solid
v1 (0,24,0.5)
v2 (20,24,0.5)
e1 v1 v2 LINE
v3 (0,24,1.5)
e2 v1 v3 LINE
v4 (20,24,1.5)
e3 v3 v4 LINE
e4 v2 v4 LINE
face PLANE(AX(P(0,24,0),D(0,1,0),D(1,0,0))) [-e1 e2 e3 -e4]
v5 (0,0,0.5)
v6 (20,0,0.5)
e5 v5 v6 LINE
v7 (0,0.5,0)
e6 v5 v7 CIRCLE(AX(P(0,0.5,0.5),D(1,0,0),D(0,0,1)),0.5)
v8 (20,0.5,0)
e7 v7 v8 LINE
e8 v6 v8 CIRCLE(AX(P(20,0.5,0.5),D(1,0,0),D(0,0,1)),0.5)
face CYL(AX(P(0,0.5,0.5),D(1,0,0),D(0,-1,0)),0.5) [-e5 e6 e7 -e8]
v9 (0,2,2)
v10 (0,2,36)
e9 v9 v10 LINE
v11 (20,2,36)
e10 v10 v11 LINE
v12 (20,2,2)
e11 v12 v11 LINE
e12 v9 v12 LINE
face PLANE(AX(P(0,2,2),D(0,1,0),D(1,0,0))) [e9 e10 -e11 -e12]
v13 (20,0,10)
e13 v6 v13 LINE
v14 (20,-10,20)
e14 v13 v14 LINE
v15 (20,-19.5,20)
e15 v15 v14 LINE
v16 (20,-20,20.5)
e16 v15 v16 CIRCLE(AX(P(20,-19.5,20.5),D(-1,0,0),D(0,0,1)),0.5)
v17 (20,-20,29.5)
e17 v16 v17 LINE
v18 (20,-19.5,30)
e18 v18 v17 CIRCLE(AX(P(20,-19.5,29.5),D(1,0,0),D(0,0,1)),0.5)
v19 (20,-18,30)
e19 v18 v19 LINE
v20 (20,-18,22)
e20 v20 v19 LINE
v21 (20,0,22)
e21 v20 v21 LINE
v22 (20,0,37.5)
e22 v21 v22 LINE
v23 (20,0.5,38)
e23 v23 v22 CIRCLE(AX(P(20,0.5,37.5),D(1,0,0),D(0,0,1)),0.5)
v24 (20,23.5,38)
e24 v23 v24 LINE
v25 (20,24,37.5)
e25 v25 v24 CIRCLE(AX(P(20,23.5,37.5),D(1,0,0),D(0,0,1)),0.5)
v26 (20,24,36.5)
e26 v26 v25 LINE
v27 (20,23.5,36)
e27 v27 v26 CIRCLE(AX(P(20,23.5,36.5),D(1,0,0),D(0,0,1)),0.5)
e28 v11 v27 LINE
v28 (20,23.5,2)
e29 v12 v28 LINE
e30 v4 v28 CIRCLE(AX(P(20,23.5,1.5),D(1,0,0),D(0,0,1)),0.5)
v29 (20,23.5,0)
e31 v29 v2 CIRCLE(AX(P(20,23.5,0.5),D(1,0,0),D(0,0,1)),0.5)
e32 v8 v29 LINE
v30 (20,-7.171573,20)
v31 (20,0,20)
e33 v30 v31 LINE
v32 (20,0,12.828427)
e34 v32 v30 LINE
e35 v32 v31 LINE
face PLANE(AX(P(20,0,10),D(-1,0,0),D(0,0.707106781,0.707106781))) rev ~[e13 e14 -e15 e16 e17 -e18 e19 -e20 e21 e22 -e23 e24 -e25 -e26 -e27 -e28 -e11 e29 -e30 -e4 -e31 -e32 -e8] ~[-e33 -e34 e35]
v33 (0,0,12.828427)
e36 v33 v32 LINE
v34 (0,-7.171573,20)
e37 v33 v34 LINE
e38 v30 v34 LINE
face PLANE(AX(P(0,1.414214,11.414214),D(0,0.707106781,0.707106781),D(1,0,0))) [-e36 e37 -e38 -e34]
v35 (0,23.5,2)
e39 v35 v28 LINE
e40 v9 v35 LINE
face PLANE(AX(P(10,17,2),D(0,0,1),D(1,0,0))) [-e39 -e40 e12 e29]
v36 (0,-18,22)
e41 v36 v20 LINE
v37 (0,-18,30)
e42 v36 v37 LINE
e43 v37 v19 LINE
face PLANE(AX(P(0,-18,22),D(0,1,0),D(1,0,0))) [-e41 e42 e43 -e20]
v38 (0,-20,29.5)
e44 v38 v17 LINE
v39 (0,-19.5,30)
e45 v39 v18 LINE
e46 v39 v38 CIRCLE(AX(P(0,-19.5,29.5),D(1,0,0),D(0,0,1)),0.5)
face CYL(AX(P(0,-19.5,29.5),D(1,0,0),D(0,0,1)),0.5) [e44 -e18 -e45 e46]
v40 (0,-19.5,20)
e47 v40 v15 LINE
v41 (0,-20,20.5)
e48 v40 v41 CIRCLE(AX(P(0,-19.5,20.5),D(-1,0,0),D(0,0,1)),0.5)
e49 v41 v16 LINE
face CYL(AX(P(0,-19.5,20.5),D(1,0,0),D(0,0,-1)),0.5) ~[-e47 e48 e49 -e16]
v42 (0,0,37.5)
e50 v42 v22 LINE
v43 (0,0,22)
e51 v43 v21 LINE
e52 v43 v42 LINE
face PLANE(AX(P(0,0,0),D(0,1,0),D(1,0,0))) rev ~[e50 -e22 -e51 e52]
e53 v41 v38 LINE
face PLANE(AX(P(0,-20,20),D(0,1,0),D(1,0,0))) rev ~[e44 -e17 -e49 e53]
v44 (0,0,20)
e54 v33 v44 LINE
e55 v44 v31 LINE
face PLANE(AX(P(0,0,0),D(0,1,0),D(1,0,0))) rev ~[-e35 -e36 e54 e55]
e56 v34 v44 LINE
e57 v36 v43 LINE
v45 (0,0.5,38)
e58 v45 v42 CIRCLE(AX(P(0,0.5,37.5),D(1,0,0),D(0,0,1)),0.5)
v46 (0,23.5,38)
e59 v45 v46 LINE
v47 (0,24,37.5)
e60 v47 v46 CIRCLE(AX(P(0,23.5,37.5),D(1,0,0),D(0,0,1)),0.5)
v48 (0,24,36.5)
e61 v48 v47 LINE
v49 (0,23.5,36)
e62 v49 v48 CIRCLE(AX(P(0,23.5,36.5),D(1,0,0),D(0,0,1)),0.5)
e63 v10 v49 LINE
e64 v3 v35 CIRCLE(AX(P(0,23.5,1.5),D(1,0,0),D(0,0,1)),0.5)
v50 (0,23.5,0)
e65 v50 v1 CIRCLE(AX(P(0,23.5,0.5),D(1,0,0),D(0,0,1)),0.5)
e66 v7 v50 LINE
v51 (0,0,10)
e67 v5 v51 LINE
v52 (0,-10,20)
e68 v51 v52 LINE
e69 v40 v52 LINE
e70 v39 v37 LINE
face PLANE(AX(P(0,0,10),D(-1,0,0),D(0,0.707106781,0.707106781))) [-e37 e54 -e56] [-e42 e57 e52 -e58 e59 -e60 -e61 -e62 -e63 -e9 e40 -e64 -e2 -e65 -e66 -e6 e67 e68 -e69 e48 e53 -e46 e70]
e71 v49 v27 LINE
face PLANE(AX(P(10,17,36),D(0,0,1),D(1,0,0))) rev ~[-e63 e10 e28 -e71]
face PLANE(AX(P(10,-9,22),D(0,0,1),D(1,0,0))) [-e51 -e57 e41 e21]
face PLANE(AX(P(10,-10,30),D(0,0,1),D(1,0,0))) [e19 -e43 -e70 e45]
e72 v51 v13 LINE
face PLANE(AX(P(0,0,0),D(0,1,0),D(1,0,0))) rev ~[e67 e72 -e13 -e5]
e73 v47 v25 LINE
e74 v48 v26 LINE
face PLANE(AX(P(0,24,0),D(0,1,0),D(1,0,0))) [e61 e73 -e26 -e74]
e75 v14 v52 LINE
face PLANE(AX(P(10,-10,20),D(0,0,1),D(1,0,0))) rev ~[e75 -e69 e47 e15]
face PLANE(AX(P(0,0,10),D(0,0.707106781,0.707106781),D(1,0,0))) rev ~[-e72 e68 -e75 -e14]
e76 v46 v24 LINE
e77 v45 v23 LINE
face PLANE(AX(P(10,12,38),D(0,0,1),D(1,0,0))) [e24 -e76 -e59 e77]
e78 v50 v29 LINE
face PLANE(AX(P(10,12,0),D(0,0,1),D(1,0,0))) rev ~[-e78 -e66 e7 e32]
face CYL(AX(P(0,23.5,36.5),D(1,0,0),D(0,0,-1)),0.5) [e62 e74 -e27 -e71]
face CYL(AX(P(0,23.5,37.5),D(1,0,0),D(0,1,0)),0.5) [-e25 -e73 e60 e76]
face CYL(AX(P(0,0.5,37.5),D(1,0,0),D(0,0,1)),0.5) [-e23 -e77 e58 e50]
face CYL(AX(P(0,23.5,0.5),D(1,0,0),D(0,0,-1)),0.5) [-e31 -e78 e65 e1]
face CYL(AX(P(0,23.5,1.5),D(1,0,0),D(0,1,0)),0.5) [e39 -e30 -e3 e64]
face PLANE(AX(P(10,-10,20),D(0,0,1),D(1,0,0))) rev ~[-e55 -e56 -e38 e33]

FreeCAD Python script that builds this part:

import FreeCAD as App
import Part
import Sketcher
Q = App.Units.Quantity


def edges_at(feature, points):
    """Names of the edges that pass closest to the given points."""
    edges = feature.Shape.Edges
    near = lambda p: min(range(len(edges)), key=lambda i: edges[i].distToShape(Part.Vertex(*p))[0])
    return sorted({f"Edge{near(p) + 1}" for p in points})

doc = App.newDocument("Part")
params = doc.addObject("Spreadsheet::Sheet", "Params")
for row, (alias, value) in enumerate([
    ("sketch1_width", "20 mm"),
    ("sketch1_height", "2 mm"),
    ("pad1_length", "14.5 mm"),
    ("sketch2_width", "20 mm"),
    ("sketch2_height", "30 mm"),
    ("pad2_length", "34 mm"),
    ("sketch3_width", "20 mm"),
    ("sketch3_height", "24 mm"),
    ("pad3_length", "38 mm"),
    ("sketch4_width", "20 mm"),
    ("sketch4_height", "18 mm"),
    ("pad4_length", "8 mm"),
    ("sketch5_width", "20 mm"),
    ("pad5_length", "10 mm"),
    ("fillet_radius", "0.5 mm"),
], start=1):
    params.set(f"A{row}", alias)
    params.set(f"B{row}", "=" + value)
    params.setAlias(f"B{row}", alias)

body = doc.addObject("PartDesign::Body", "Body")

# Sketch on XY plane
sketch1 = doc.addObject("Sketcher::SketchObject", "Sketch")
body.addObject(sketch1)
sketch1.AttachmentSupport = (doc.XY_Plane, [""])
sketch1.MapMode = "FlatFace"
sketch1.addGeometry(Part.LineSegment(App.Vector(0, 2, 0), App.Vector(0, 0, 0)), False)
sketch1.addGeometry(Part.LineSegment(App.Vector(0, 0, 0), App.Vector(20, 0, 0)), False)
sketch1.addGeometry(Part.LineSegment(App.Vector(20, 0, 0), App.Vector(20, 2, 0)), False)
sketch1.addGeometry(Part.LineSegment(App.Vector(20, 2, 0), App.Vector(0, 2, 0)), False)
sketch1.addConstraint(Sketcher.Constraint("Coincident", 0, 2, 1, 1))
sketch1.addConstraint(Sketcher.Constraint("Coincident", 1, 2, 2, 1))
sketch1.addConstraint(Sketcher.Constraint("Coincident", 2, 2, 3, 1))
sketch1.addConstraint(Sketcher.Constraint("Coincident", 3, 2, 0, 1))
sketch1.addConstraint(Sketcher.Constraint("Vertical", 0))
sketch1.addConstraint(Sketcher.Constraint("Horizontal", 1))
sketch1.addConstraint(Sketcher.Constraint("Vertical", 2))
sketch1.addConstraint(Sketcher.Constraint("Horizontal", 3))
sketch1.addConstraint(Sketcher.Constraint("Coincident", 0, 2, -1, 1))
sketch1.addConstraint(Sketcher.Constraint("DistanceX", 1, 1, 1, 2, Q("20 mm")))
sketch1.addConstraint(Sketcher.Constraint("DistanceY", 0, 2, 0, 1, Q("2 mm")))
sketch1.setExpression("Constraints[9]", "Params.sketch1_width")
sketch1.setExpression("Constraints[10]", "Params.sketch1_height")
pad1 = doc.addObject("PartDesign::Pad", "Pad")
body.addObject(pad1)
pad1.Profile = sketch1
pad1.setExpression("Length", "Params.pad1_length")
body2 = doc.addObject("PartDesign::Body", "Body001")
doc.recompute()

body.Placement = App.Placement(App.Vector(0, 0, 0), App.Rotation(App.Vector(1, 0, 0), 45))
boolean = doc.addObject("PartDesign::Boolean", "Boolean")
body2.addObject(boolean)
boolean.Type = "Fuse"
boolean.addObjects([body])
body3 = doc.addObject("PartDesign::Body", "Body002")
doc.recompute()

body2.Placement = App.Placement(App.Vector(0, 0, 10), App.Rotation(App.Vector(0, 0, 1), 0))
boolean2 = doc.addObject("PartDesign::Boolean", "Boolean001")
body3.addObject(boolean2)
boolean2.Type = "Fuse"
boolean2.addObjects([body2])
body4 = doc.addObject("PartDesign::Body", "Body003")

# Sketch on XY plane
sketch2 = doc.addObject("Sketcher::SketchObject", "Sketch001")
body4.addObject(sketch2)
sketch2.AttachmentSupport = (doc.getObject("XY_Plane003"), [""])
sketch2.MapMode = "FlatFace"
sketch2.AttachmentOffset = App.Placement(App.Vector(0, 0, 2), App.Rotation())
sketch2.addGeometry(Part.LineSegment(App.Vector(0, 32, 0), App.Vector(0, 2, 0)), False)
sketch2.addGeometry(Part.LineSegment(App.Vector(0, 2, 0), App.Vector(20, 2, 0)), False)
sketch2.addGeometry(Part.LineSegment(App.Vector(20, 2, 0), App.Vector(20, 32, 0)), False)
sketch2.addGeometry(Part.LineSegment(App.Vector(20, 32, 0), App.Vector(0, 32, 0)), False)
sketch2.addConstraint(Sketcher.Constraint("Coincident", 0, 2, 1, 1))
sketch2.addConstraint(Sketcher.Constraint("Coincident", 1, 2, 2, 1))
sketch2.addConstraint(Sketcher.Constraint("Coincident", 2, 2, 3, 1))
sketch2.addConstraint(Sketcher.Constraint("Coincident", 3, 2, 0, 1))
sketch2.addConstraint(Sketcher.Constraint("Vertical", 0))
sketch2.addConstraint(Sketcher.Constraint("Horizontal", 1))
sketch2.addConstraint(Sketcher.Constraint("Vertical", 2))
sketch2.addConstraint(Sketcher.Constraint("Horizontal", 3))
sketch2.addConstraint(Sketcher.Constraint("PointOnObject", 0, 2, -2))
sketch2.addConstraint(Sketcher.Constraint("DistanceX", 1, 1, 1, 2, Q("20 mm")))
sketch2.addConstraint(Sketcher.Constraint("DistanceY", 0, 2, 0, 1, Q("30 mm")))
sketch2.addConstraint(Sketcher.Constraint("DistanceY", -1, 1, 0, 2, Q("2 mm")))
sketch2.setExpression("Constraints[9]", "Params.sketch2_width")
sketch2.setExpression("Constraints[10]", "Params.sketch2_height")
pad2 = doc.addObject("PartDesign::Pad", "Pad001")
body4.addObject(pad2)
pad2.Profile = sketch2
pad2.setExpression("Length", "Params.pad2_length")
body5 = doc.addObject("PartDesign::Body", "Body004")

# Sketch on XY plane
sketch3 = doc.addObject("Sketcher::SketchObject", "Sketch002")
body5.addObject(sketch3)
sketch3.AttachmentSupport = (doc.getObject("XY_Plane004"), [""])
sketch3.MapMode = "FlatFace"
sketch3.addGeometry(Part.LineSegment(App.Vector(0, 24, 0), App.Vector(0, 0, 0)), False)
sketch3.addGeometry(Part.LineSegment(App.Vector(0, 0, 0), App.Vector(20, 0, 0)), False)
sketch3.addGeometry(Part.LineSegment(App.Vector(20, 0, 0), App.Vector(20, 24, 0)), False)
sketch3.addGeometry(Part.LineSegment(App.Vector(20, 24, 0), App.Vector(0, 24, 0)), False)
sketch3.addConstraint(Sketcher.Constraint("Coincident", 0, 2, 1, 1))
sketch3.addConstraint(Sketcher.Constraint("Coincident", 1, 2, 2, 1))
sketch3.addConstraint(Sketcher.Constraint("Coincident", 2, 2, 3, 1))
sketch3.addConstraint(Sketcher.Constraint("Coincident", 3, 2, 0, 1))
sketch3.addConstraint(Sketcher.Constraint("Vertical", 0))
sketch3.addConstraint(Sketcher.Constraint("Horizontal", 1))
sketch3.addConstraint(Sketcher.Constraint("Vertical", 2))
sketch3.addConstraint(Sketcher.Constraint("Horizontal", 3))
sketch3.addConstraint(Sketcher.Constraint("Coincident", 0, 2, -1, 1))
sketch3.addConstraint(Sketcher.Constraint("DistanceX", 1, 1, 1, 2, Q("20 mm")))
sketch3.addConstraint(Sketcher.Constraint("DistanceY", 0, 2, 0, 1, Q("24 mm")))
sketch3.setExpression("Constraints[9]", "Params.sketch3_width")
sketch3.setExpression("Constraints[10]", "Params.sketch3_height")
pad3 = doc.addObject("PartDesign::Pad", "Pad002")
body5.addObject(pad3)
pad3.Profile = sketch3
pad3.setExpression("Length", "Params.pad3_length")
doc.recompute()

boolean3 = doc.addObject("PartDesign::Boolean", "Boolean002")
body5.addObject(boolean3)
boolean3.Type = "Cut"
boolean3.addObjects([body4])
body6 = doc.addObject("PartDesign::Body", "Body005")

# Sketch on XY plane
sketch4 = doc.addObject("Sketcher::SketchObject", "Sketch003")
body6.addObject(sketch4)
sketch4.AttachmentSupport = (doc.getObject("XY_Plane005"), [""])
sketch4.MapMode = "FlatFace"
sketch4.AttachmentOffset = App.Placement(App.Vector(0, 0, 22), App.Rotation())
sketch4.addGeometry(Part.LineSegment(App.Vector(0, 0, 0), App.Vector(0, -18, 0)), False)
sketch4.addGeometry(Part.LineSegment(App.Vector(0, -18, 0), App.Vector(20, -18, 0)), False)
sketch4.addGeometry(Part.LineSegment(App.Vector(20, -18, 0), App.Vector(20, 0, 0)), False)
sketch4.addGeometry(Part.LineSegment(App.Vector(20, 0, 0), App.Vector(0, 0, 0)), False)
sketch4.addConstraint(Sketcher.Constraint("Coincident", 0, 2, 1, 1))
sketch4.addConstraint(Sketcher.Constraint("Coincident", 1, 2, 2, 1))
sketch4.addConstraint(Sketcher.Constraint("Coincident", 2, 2, 3, 1))
sketch4.addConstraint(Sketcher.Constraint("Coincident", 3, 2, 0, 1))
sketch4.addConstraint(Sketcher.Constraint("Vertical", 0))
sketch4.addConstraint(Sketcher.Constraint("Horizontal", 1))
sketch4.addConstraint(Sketcher.Constraint("Vertical", 2))
sketch4.addConstraint(Sketcher.Constraint("Horizontal", 3))
sketch4.addConstraint(Sketcher.Constraint("Coincident", 3, 2, -1, 1))
sketch4.addConstraint(Sketcher.Constraint("DistanceX", 1, 1, 1, 2, Q("20 mm")))
sketch4.addConstraint(Sketcher.Constraint("DistanceY", 0, 2, 0, 1, Q("18 mm")))
sketch4.setExpression("Constraints[9]", "Params.sketch4_width")
sketch4.setExpression("Constraints[10]", "Params.sketch4_height")
pad4 = doc.addObject("PartDesign::Pad", "Pad003")
body6.addObject(pad4)
pad4.Profile = sketch4
pad4.setExpression("Length", "Params.pad4_length")
body7 = doc.addObject("PartDesign::Body", "Body006")

# Sketch on XY plane
sketch5 = doc.addObject("Sketcher::SketchObject", "Sketch004")
body7.addObject(sketch5)
sketch5.AttachmentSupport = (doc.getObject("XY_Plane006"), [""])
sketch5.MapMode = "FlatFace"
sketch5.AttachmentOffset = App.Placement(App.Vector(0, 0, 20), App.Rotation())
sketch5.addGeometry(Part.LineSegment(App.Vector(0, 0, 0), App.Vector(0, -20, 0)), False)
sketch5.addGeometry(Part.LineSegment(App.Vector(0, -20, 0), App.Vector(20, -20, 0)), False)
sketch5.addGeometry(Part.LineSegment(App.Vector(20, -20, 0), App.Vector(20, 0, 0)), False)
sketch5.addGeometry(Part.LineSegment(App.Vector(20, 0, 0), App.Vector(0, 0, 0)), False)
sketch5.addConstraint(Sketcher.Constraint("Coincident", 0, 2, 1, 1))
sketch5.addConstraint(Sketcher.Constraint("Coincident", 1, 2, 2, 1))
sketch5.addConstraint(Sketcher.Constraint("Coincident", 2, 2, 3, 1))
sketch5.addConstraint(Sketcher.Constraint("Coincident", 3, 2, 0, 1))
sketch5.addConstraint(Sketcher.Constraint("Vertical", 0))
sketch5.addConstraint(Sketcher.Constraint("Horizontal", 1))
sketch5.addConstraint(Sketcher.Constraint("Vertical", 2))
sketch5.addConstraint(Sketcher.Constraint("Horizontal", 3))
sketch5.addConstraint(Sketcher.Constraint("Coincident", 3, 2, -1, 1))
sketch5.addConstraint(Sketcher.Constraint("Equal", 3, 0))
sketch5.addConstraint(Sketcher.Constraint("DistanceX", 1, 1, 1, 2, Q("20 mm")))
sketch5.setExpression("Constraints[10]", "Params.sketch5_width")
pad5 = doc.addObject("PartDesign::Pad", "Pad004")
body7.addObject(pad5)
pad5.Profile = sketch5
pad5.setExpression("Length", "Params.pad5_length")
doc.recompute()

boolean4 = doc.addObject("PartDesign::Boolean", "Boolean003")
body7.addObject(boolean4)
boolean4.Type = "Cut"
boolean4.addObjects([body6])
doc.recompute()

boolean5 = doc.addObject("PartDesign::Boolean", "Boolean004")
body7.addObject(boolean5)
boolean5.Type = "Fuse"
boolean5.addObjects([body5])
doc.recompute()

boolean6 = doc.addObject("PartDesign::Boolean", "Boolean005")
body7.addObject(boolean6)
boolean6.Type = "Fuse"
boolean6.addObjects([body3])
doc.recompute()

fillet = doc.addObject("PartDesign::Fillet", "Fillet")
body7.addObject(fillet)
fillet.Base = (boolean6, edges_at(boolean6, [
    (10, -20, 30),
    (10, -20, 20),
    (10, 0, 38),
    (10, 24, 38),
    (10, 24, 36),
    (10, 24, 2),
    (10, 24, 0),
    (10, 0, 0),
]))
fillet.setExpression("Radius", "Params.fillet_radius")

doc.recompute()
